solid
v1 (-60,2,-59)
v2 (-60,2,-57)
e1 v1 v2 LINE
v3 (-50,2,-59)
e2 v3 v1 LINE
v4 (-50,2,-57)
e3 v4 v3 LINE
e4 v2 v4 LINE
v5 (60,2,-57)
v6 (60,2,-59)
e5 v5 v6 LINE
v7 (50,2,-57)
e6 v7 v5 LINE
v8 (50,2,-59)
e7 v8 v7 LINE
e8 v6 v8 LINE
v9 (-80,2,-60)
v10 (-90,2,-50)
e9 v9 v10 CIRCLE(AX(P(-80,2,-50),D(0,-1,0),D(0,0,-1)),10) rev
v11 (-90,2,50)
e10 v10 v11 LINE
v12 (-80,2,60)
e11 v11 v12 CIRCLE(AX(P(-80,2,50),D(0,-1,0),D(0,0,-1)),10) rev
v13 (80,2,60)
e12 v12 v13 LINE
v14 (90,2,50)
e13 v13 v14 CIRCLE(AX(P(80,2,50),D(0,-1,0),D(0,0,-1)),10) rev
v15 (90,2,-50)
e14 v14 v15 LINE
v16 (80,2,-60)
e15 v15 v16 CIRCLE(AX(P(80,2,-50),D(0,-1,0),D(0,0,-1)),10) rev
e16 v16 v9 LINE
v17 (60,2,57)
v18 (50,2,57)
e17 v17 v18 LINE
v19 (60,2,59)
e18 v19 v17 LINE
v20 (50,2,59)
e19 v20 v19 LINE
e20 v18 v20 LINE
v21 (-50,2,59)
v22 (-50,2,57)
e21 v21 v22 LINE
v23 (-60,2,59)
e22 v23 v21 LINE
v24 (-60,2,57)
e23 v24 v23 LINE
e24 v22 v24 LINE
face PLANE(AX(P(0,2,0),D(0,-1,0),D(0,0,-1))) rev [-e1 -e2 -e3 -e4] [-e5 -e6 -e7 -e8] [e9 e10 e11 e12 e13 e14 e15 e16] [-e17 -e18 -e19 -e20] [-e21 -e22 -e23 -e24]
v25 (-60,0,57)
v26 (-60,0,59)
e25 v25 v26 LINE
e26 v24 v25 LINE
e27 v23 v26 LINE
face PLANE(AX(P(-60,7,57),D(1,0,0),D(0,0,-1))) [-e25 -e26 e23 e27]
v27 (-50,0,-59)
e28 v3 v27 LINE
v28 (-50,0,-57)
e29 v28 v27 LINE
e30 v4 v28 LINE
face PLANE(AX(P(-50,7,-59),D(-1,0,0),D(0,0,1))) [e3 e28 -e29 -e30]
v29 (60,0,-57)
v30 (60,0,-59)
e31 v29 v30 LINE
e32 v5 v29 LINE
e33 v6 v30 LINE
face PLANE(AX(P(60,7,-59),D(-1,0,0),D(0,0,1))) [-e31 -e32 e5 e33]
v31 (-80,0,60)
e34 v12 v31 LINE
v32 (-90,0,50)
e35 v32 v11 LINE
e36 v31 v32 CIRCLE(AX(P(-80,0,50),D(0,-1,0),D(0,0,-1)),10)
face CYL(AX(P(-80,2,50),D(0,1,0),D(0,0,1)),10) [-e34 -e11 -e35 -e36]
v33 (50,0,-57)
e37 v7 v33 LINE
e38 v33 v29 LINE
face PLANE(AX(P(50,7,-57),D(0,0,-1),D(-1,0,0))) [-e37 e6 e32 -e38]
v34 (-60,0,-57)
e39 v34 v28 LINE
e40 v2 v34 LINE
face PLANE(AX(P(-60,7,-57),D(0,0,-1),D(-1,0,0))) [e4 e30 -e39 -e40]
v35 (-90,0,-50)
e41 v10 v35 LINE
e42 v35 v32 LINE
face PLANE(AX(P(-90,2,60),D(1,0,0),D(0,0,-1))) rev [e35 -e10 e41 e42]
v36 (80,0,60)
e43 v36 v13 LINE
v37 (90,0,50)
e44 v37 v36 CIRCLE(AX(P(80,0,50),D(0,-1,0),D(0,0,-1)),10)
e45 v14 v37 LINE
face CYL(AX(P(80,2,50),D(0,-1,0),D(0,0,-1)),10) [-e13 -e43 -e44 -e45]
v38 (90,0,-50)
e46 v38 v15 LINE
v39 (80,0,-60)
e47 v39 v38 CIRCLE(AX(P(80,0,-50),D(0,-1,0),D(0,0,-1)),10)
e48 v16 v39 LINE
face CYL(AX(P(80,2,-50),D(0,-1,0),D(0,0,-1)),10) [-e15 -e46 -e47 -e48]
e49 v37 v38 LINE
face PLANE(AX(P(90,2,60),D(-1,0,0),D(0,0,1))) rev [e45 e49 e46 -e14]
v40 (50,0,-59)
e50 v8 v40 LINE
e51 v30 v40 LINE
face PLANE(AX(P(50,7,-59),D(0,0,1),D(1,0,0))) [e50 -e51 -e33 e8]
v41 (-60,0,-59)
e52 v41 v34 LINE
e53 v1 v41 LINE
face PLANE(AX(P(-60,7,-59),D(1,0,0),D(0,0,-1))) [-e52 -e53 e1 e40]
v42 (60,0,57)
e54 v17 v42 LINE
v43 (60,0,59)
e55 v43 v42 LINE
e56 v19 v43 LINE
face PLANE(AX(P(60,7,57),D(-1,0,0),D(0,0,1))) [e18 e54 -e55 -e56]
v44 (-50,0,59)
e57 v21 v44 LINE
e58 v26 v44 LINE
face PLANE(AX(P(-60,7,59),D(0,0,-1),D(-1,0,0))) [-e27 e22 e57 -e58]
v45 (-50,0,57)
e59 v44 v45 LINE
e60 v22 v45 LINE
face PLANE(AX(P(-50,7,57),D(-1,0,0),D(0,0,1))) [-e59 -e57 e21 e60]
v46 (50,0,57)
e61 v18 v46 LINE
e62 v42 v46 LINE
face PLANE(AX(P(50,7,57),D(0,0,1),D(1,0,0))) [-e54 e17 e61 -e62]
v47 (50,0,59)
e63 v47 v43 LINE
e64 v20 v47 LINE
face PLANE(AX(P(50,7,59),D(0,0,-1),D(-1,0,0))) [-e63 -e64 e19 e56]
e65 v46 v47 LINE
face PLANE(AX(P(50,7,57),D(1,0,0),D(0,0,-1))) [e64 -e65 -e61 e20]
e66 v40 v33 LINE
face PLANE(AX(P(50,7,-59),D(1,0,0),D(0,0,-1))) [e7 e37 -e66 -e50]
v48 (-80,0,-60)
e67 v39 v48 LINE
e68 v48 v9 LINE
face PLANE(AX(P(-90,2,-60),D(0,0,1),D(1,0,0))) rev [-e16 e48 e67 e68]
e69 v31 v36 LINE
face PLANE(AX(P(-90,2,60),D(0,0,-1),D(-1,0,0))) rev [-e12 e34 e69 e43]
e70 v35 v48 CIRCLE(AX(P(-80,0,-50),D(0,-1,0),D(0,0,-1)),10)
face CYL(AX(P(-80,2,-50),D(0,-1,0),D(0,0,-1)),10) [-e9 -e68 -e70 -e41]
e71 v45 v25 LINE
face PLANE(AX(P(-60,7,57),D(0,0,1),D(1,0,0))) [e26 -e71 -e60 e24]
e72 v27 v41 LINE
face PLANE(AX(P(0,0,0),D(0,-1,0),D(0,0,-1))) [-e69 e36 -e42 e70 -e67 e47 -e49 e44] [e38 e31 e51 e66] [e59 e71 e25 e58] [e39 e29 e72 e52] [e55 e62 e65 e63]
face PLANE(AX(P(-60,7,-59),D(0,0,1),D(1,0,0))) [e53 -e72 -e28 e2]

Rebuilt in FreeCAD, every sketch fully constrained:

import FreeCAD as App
import Part
import Sketcher

V = App.Vector
Q = App.Units.Quantity


def edges_at(feature, points):
    """Names of the edges that pass closest to the given points."""
    edges = feature.Shape.Edges
    near = lambda p: min(range(len(edges)), key=lambda i: edges[i].distToShape(Part.Vertex(*p))[0])
    return sorted({f"Edge{near(p) + 1}" for p in points})

doc = App.newDocument("Part")
body = doc.addObject("PartDesign::Body", "Body")

# Sketch on XZ plane
sketch1 = body.newObject("Sketcher::SketchObject", "Sketch")
sketch1.AttachmentSupport = (doc.getObject("XZ_Plane"), [""])
sketch1.MapMode = "FlatFace"
sketch1.addGeometry([
    Part.LineSegment(V(-90, -60, 0), V(-90, 60, 0)),
    Part.LineSegment(V(-90, 60, 0), V(90, 60, 0)),
    Part.LineSegment(V(90, 60, 0), V(90, -60, 0)),
    Part.LineSegment(V(90, -60, 0), V(-90, -60, 0)),
], False)
sketch1.addConstraint([
    Sketcher.Constraint("Coincident", 0, 2, 1, 1),
    Sketcher.Constraint("Coincident", 1, 2, 2, 1),
    Sketcher.Constraint("Coincident", 2, 2, 3, 1),
    Sketcher.Constraint("Coincident", 3, 2, 0, 1),
    Sketcher.Constraint("Vertical", 0),
    Sketcher.Constraint("Horizontal", 1),
    Sketcher.Constraint("Vertical", 2),
    Sketcher.Constraint("Horizontal", 3),
    Sketcher.Constraint("Symmetric", 0, 2, 2, 2, -1, 1),
    Sketcher.Constraint("DistanceX", 1, 1, 1, 2, Q("180 mm")),
    Sketcher.Constraint("DistanceY", 0, 1, 0, 2, Q("120 mm")),
])
pad1 = body.newObject("PartDesign::Pad", "Pad")
pad1.Profile = sketch1
pad1.Length = 2
pad1.Reversed = True
doc.recompute()

fillet = body.newObject("PartDesign::Fillet", "Fillet")
fillet.Base = (pad1, edges_at(pad1, [(-90, 1, 60)]))
fillet.Radius = 10
doc.recompute()

fillet2 = body.newObject("PartDesign::Fillet", "Fillet001")
fillet2.Base = (fillet, edges_at(fillet, [(-90, 1, -60)]))
fillet2.Radius = 10
doc.recompute()

fillet3 = body.newObject("PartDesign::Fillet", "Fillet002")
fillet3.Base = (fillet2, edges_at(fillet2, [(90, 1, 60)]))
fillet3.Radius = 10
doc.recompute()

fillet4 = body.newObject("PartDesign::Fillet", "Fillet003")
fillet4.Base = (fillet3, edges_at(fillet3, [(90, 1, -60)]))
fillet4.Radius = 10

# Sketch on XZ plane
sketch2 = body.newObject("Sketcher::SketchObject", "Sketch001")
sketch2.AttachmentSupport = (doc.getObject("XZ_Plane"), [""])
sketch2.MapMode = "FlatFace"
sketch2.addGeometry([
    Part.LineSegment(V(-60, -59, 0), V(-60, -57, 0)),  # 0
    Part.LineSegment(V(-60, -57, 0), V(-50, -57, 0)),  # 1
    Part.LineSegment(V(-50, -57, 0), V(-50, -59, 0)),  # 2
    Part.LineSegment(V(-50, -59, 0), V(-60, -59, 0)),  # 3
    Part.LineSegment(V(50, -59, 0), V(50, -57, 0)),  # 4
    Part.LineSegment(V(50, -57, 0), V(60, -57, 0)),  # 5
    Part.LineSegment(V(60, -57, 0), V(60, -59, 0)),  # 6
    Part.LineSegment(V(60, -59, 0), V(50, -59, 0)),  # 7
    Part.LineSegment(V(-60, 57, 0), V(-60, 59, 0)),  # 8
    Part.LineSegment(V(-60, 59, 0), V(-50, 59, 0)),  # 9
    Part.LineSegment(V(-50, 59, 0), V(-50, 57, 0)),  # 10
    Part.LineSegment(V(-50, 57, 0), V(-60, 57, 0)),  # 11
    Part.LineSegment(V(50, 57, 0), V(50, 59, 0)),  # 12
    Part.LineSegment(V(50, 59, 0), V(60, 59, 0)),  # 13
    Part.LineSegment(V(60, 59, 0), V(60, 57, 0)),  # 14
    Part.LineSegment(V(60, 57, 0), V(50, 57, 0)),  # 15
], False)
sketch2.addConstraint([
    Sketcher.Constraint("Coincident", 0, 2, 1, 1),
    Sketcher.Constraint("Coincident", 1, 2, 2, 1),
    Sketcher.Constraint("Coincident", 2, 2, 3, 1),
    Sketcher.Constraint("Coincident", 3, 2, 0, 1),
    Sketcher.Constraint("Coincident", 4, 2, 5, 1),
    Sketcher.Constraint("Coincident", 5, 2, 6, 1),
    Sketcher.Constraint("Coincident", 6, 2, 7, 1),
    Sketcher.Constraint("Coincident", 7, 2, 4, 1),
    Sketcher.Constraint("Coincident", 8, 2, 9, 1),
    Sketcher.Constraint("Coincident", 9, 2, 10, 1),
    Sketcher.Constraint("Coincident", 10, 2, 11, 1),
    Sketcher.Constraint("Coincident", 11, 2, 8, 1),
    Sketcher.Constraint("Coincident", 12, 2, 13, 1),
    Sketcher.Constraint("Coincident", 13, 2, 14, 1),
    Sketcher.Constraint("Coincident", 14, 2, 15, 1),
    Sketcher.Constraint("Coincident", 15, 2, 12, 1),
    Sketcher.Constraint("Vertical", 0),
    Sketcher.Constraint("Horizontal", 1),
    Sketcher.Constraint("Vertical", 2),
    Sketcher.Constraint("Horizontal", 3),
    Sketcher.Constraint("Vertical", 4),
    Sketcher.Constraint("Horizontal", 5),
    Sketcher.Constraint("Vertical", 6),
    Sketcher.Constraint("Horizontal", 7),
    Sketcher.Constraint("Vertical", 8),
    Sketcher.Constraint("Horizontal", 9),
    Sketcher.Constraint("Vertical", 10),
    Sketcher.Constraint("Horizontal", 11),
    Sketcher.Constraint("Vertical", 12),
    Sketcher.Constraint("Horizontal", 13),
    Sketcher.Constraint("Vertical", 14),
    Sketcher.Constraint("Horizontal", 15),
    Sketcher.Constraint("Symmetric", 6, 2, 8, 2, -1, 1),
    Sketcher.Constraint("Symmetric", 4, 2, 10, 2, -1, 1),
    Sketcher.Constraint("Symmetric", 2, 2, 12, 2, -1, 1),
    Sketcher.Constraint("Symmetric", 0, 2, 14, 2, -1, 1),
    Sketcher.Constraint("Symmetric", 1, 2, 4, 2, -2),
    Sketcher.Constraint("Symmetric", 3, 2, 6, 2, -2),
    Sketcher.Constraint("DistanceX", 1, 1, 1, 2, Q("10 mm")),
    Sketcher.Constraint("DistanceY", 0, 1, 0, 2, Q("2 mm")),
    Sketcher.Constraint("DistanceX", 0, 2, -1, 1, Q("60 mm")),
    Sketcher.Constraint("DistanceY", 0, 2, -1, 1, Q("57 mm")),
])
pocket1 = body.newObject("PartDesign::Pocket", "Pocket")
pocket1.Profile = sketch2
pocket1.Length = 7

doc.recompute()
